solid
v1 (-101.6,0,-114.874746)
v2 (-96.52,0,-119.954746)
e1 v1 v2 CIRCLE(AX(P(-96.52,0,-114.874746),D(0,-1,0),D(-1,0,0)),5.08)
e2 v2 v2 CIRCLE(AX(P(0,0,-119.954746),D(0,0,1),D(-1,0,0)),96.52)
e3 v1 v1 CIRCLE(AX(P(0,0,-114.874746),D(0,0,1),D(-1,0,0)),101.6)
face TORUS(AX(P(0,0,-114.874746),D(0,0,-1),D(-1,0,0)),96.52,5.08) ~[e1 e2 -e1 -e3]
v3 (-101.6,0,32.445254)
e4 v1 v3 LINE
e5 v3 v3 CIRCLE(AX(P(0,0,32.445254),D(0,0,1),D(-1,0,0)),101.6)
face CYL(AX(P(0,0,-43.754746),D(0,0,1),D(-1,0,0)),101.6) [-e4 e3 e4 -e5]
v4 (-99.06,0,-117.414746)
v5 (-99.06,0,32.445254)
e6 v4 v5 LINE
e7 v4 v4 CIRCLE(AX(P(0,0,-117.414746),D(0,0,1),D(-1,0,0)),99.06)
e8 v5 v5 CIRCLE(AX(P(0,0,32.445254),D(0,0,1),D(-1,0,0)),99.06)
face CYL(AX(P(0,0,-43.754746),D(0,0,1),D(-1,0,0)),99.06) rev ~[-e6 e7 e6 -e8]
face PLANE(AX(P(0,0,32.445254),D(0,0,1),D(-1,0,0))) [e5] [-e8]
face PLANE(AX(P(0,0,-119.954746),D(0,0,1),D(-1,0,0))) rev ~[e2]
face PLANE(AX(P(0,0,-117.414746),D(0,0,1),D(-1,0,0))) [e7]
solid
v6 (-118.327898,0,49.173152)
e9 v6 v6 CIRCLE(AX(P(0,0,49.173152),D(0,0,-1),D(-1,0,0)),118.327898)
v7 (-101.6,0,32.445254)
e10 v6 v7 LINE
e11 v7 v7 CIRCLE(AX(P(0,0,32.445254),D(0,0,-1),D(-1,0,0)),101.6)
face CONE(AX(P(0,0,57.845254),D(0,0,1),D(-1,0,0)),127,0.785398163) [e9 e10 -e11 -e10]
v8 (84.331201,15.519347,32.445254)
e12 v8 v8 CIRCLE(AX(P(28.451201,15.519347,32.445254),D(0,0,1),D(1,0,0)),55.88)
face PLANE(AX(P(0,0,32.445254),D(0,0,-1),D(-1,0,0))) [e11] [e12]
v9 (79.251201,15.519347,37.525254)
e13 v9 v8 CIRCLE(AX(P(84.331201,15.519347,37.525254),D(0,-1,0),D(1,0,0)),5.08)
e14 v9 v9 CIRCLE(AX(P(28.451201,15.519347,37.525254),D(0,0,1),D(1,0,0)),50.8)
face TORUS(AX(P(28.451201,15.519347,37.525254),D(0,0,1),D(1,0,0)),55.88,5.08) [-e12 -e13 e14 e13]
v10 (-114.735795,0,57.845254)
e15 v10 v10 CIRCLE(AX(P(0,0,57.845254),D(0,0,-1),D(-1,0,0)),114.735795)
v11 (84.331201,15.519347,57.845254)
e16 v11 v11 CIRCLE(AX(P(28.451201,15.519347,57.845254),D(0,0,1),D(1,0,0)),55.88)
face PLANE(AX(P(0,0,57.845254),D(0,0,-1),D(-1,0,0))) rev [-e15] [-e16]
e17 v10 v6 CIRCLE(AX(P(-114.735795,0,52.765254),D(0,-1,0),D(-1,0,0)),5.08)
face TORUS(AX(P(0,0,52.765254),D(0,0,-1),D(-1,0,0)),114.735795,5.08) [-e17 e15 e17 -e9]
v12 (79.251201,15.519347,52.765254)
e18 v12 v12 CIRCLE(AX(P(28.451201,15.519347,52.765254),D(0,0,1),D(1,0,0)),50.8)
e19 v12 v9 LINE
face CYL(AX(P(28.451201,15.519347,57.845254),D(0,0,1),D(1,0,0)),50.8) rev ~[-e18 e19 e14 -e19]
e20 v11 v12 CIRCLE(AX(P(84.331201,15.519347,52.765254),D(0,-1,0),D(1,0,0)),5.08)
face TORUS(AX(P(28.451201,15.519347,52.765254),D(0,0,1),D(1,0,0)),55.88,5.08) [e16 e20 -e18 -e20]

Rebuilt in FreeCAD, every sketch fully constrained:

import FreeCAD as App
import Part
import Sketcher
Q = App.Units.Quantity


def edges_at(feature, points):
    """Names of the edges that pass closest to the given points."""
    edges = feature.Shape.Edges
    near = lambda p: min(range(len(edges)), key=lambda i: edges[i].distToShape(Part.Vertex(*p))[0])
    return sorted({f"Edge{near(p) + 1}" for p in points})


def faces_at(feature, points):
    """Names of the faces that lie closest to the given points."""
    faces = feature.Shape.Faces
    near = lambda p: min(range(len(faces)), key=lambda i: faces[i].distToShape(Part.Vertex(*p))[0])
    return sorted({f"Face{near(p) + 1}" for p in points})

doc = App.newDocument("Part")
body = doc.addObject("PartDesign::Body", "Body")

# Sketch on XZ plane
sketch1 = doc.addObject("Sketcher::SketchObject", "Sketch")
body.addObject(sketch1)
sketch1.AttachmentSupport = (doc.XZ_Plane, [""])
sketch1.MapMode = "FlatFace"
sketch1.addGeometry([
    Part.LineSegment(App.Vector(0, 58, 0), App.Vector(-127, 58, 0)),
    Part.LineSegment(App.Vector(-127, 58, 0), App.Vector(-102, 32, 0)),
    Part.LineSegment(App.Vector(-102, 32, 0), App.Vector(0, 32, 0)),
    Part.LineSegment(App.Vector(0, 32, 0), App.Vector(0, 58, 0)),
], False)
sketch1.addConstraint([
    Sketcher.Constraint("Coincident", 0, 2, 1, 1),
    Sketcher.Constraint("Coincident", 1, 2, 2, 1),
    Sketcher.Constraint("Coincident", 2, 2, 3, 1),
    Sketcher.Constraint("Coincident", 3, 2, 0, 1),
    Sketcher.Constraint("Horizontal", 0),
    Sketcher.Constraint("Horizontal", 2),
    Sketcher.Constraint("Vertical", 3),
    Sketcher.Constraint("PointOnObject", 2, 2, -2),
    Sketcher.Constraint("DistanceX", 0, 2, 0, 1, Q("5 in")),
    Sketcher.Constraint("DistanceX", 2, 1, 2, 2, Q("4 in")),
    Sketcher.Constraint("DistanceY", 3, 1, 3, 2, Q("1 in")),
    Sketcher.Constraint("DistanceY", -1, 1, 0, 2, Q("57.845254 mm")),
])
revolution = doc.addObject("PartDesign::Revolution", "Revolution")
body.addObject(revolution)
revolution.Profile = sketch1
revolution.ReferenceAxis = (sketch1, ["V_Axis"])
revolution.Angle = 360

# Sketch on XY plane
sketch2 = doc.addObject("Sketcher::SketchObject", "Sketch001")
body.addObject(sketch2)
sketch2.AttachmentSupport = (doc.XY_Plane, [""])
sketch2.MapMode = "FlatFace"
sketch2.AttachmentOffset = App.Placement(App.Vector(0, 0, 57.845254), App.Rotation())
sketch2.addGeometry(Part.Circle(App.Vector(28, 16, 0), App.Vector(0, 0, 1), 51), False)
sketch2.addConstraint([
    Sketcher.Constraint("Diameter", 0, Q("4 in")),
    Sketcher.Constraint("DistanceX", -1, 1, 0, 3, Q("28.451201 mm")),
    Sketcher.Constraint("DistanceY", -1, 1, 0, 3, Q("15.519347 mm")),
])
pocket1 = doc.addObject("PartDesign::Pocket", "Pocket")
body.addObject(pocket1)
pocket1.Profile = sketch2
pocket1.Length = Q("1.24 in")
doc.recompute()

fillet = doc.addObject("PartDesign::Fillet", "Fillet")
body.addObject(fillet)
fillet.Base = (pocket1, edges_at(pocket1, [(127, 0, 57.845), (-22.349, 15.519, 57.845)]))
fillet.Radius = Q("0.2 in")
doc.recompute()

fillet2 = doc.addObject("PartDesign::Fillet", "Fillet001")
body.addObject(fillet2)
fillet2.Base = (fillet, edges_at(fillet, [(79.251, 15.519, 42.605), (-22.349, 15.519, 52.765), (-22.349, 15.519, 32.445)]))
fillet2.Radius = Q("0.2 in")
body2 = doc.addObject("PartDesign::Body", "Body001")

# Sketch on XZ plane
sketch3 = doc.addObject("Sketcher::SketchObject", "Sketch002")
body2.addObject(sketch3)
sketch3.AttachmentSupport = (doc.getObject("XZ_Plane001"), [""])
sketch3.MapMode = "FlatFace"
sketch3.addGeometry([
    Part.LineSegment(App.Vector(-102, 32, 0), App.Vector(-102, -120, 0)),
    Part.LineSegment(App.Vector(-102, -120, 0), App.Vector(0, -120, 0)),
    Part.LineSegment(App.Vector(0, -120, 0), App.Vector(0, 32, 0)),
    Part.LineSegment(App.Vector(0, 32, 0), App.Vector(-102, 32, 0)),
], False)
sketch3.addConstraint([
    Sketcher.Constraint("Coincident", 0, 2, 1, 1),
    Sketcher.Constraint("Coincident", 1, 2, 2, 1),
    Sketcher.Constraint("Coincident", 2, 2, 3, 1),
    Sketcher.Constraint("Coincident", 3, 2, 0, 1),
    Sketcher.Constraint("Vertical", 0),
    Sketcher.Constraint("Horizontal", 1),
    Sketcher.Constraint("Vertical", 2),
    Sketcher.Constraint("Horizontal", 3),
    Sketcher.Constraint("PointOnObject", 1, 2, -2),
    Sketcher.Constraint("DistanceX", 1, 1, 1, 2, Q("4 in")),
    Sketcher.Constraint("DistanceY", 0, 2, 0, 1, Q("6 in")),
    Sketcher.Constraint("DistanceY", 0, 2, -1, 1, Q("119.954746 mm")),
])
revolution2 = doc.addObject("PartDesign::Revolution", "Revolution001")
body2.addObject(revolution2)
revolution2.Profile = sketch3
revolution2.ReferenceAxis = (sketch3, ["V_Axis"])
revolution2.Angle = 360
doc.recompute()

thickness = doc.addObject("PartDesign::Thickness", "Thickness")
body2.addObject(thickness)
thickness.Base = (revolution2, faces_at(revolution2, [(0, 0, 32.445)]))
thickness.Value = Q("0.1 in")
thickness.Reversed = True
thickness.Join = "Arc"
doc.recompute()

fillet3 = doc.addObject("PartDesign::Fillet", "Fillet002")
body2.addObject(fillet3)
fillet3.Base = (thickness, edges_at(thickness, [(101.6, 0, -119.955)]))
fillet3.Radius = Q("0.2 in")

doc.recompute()
